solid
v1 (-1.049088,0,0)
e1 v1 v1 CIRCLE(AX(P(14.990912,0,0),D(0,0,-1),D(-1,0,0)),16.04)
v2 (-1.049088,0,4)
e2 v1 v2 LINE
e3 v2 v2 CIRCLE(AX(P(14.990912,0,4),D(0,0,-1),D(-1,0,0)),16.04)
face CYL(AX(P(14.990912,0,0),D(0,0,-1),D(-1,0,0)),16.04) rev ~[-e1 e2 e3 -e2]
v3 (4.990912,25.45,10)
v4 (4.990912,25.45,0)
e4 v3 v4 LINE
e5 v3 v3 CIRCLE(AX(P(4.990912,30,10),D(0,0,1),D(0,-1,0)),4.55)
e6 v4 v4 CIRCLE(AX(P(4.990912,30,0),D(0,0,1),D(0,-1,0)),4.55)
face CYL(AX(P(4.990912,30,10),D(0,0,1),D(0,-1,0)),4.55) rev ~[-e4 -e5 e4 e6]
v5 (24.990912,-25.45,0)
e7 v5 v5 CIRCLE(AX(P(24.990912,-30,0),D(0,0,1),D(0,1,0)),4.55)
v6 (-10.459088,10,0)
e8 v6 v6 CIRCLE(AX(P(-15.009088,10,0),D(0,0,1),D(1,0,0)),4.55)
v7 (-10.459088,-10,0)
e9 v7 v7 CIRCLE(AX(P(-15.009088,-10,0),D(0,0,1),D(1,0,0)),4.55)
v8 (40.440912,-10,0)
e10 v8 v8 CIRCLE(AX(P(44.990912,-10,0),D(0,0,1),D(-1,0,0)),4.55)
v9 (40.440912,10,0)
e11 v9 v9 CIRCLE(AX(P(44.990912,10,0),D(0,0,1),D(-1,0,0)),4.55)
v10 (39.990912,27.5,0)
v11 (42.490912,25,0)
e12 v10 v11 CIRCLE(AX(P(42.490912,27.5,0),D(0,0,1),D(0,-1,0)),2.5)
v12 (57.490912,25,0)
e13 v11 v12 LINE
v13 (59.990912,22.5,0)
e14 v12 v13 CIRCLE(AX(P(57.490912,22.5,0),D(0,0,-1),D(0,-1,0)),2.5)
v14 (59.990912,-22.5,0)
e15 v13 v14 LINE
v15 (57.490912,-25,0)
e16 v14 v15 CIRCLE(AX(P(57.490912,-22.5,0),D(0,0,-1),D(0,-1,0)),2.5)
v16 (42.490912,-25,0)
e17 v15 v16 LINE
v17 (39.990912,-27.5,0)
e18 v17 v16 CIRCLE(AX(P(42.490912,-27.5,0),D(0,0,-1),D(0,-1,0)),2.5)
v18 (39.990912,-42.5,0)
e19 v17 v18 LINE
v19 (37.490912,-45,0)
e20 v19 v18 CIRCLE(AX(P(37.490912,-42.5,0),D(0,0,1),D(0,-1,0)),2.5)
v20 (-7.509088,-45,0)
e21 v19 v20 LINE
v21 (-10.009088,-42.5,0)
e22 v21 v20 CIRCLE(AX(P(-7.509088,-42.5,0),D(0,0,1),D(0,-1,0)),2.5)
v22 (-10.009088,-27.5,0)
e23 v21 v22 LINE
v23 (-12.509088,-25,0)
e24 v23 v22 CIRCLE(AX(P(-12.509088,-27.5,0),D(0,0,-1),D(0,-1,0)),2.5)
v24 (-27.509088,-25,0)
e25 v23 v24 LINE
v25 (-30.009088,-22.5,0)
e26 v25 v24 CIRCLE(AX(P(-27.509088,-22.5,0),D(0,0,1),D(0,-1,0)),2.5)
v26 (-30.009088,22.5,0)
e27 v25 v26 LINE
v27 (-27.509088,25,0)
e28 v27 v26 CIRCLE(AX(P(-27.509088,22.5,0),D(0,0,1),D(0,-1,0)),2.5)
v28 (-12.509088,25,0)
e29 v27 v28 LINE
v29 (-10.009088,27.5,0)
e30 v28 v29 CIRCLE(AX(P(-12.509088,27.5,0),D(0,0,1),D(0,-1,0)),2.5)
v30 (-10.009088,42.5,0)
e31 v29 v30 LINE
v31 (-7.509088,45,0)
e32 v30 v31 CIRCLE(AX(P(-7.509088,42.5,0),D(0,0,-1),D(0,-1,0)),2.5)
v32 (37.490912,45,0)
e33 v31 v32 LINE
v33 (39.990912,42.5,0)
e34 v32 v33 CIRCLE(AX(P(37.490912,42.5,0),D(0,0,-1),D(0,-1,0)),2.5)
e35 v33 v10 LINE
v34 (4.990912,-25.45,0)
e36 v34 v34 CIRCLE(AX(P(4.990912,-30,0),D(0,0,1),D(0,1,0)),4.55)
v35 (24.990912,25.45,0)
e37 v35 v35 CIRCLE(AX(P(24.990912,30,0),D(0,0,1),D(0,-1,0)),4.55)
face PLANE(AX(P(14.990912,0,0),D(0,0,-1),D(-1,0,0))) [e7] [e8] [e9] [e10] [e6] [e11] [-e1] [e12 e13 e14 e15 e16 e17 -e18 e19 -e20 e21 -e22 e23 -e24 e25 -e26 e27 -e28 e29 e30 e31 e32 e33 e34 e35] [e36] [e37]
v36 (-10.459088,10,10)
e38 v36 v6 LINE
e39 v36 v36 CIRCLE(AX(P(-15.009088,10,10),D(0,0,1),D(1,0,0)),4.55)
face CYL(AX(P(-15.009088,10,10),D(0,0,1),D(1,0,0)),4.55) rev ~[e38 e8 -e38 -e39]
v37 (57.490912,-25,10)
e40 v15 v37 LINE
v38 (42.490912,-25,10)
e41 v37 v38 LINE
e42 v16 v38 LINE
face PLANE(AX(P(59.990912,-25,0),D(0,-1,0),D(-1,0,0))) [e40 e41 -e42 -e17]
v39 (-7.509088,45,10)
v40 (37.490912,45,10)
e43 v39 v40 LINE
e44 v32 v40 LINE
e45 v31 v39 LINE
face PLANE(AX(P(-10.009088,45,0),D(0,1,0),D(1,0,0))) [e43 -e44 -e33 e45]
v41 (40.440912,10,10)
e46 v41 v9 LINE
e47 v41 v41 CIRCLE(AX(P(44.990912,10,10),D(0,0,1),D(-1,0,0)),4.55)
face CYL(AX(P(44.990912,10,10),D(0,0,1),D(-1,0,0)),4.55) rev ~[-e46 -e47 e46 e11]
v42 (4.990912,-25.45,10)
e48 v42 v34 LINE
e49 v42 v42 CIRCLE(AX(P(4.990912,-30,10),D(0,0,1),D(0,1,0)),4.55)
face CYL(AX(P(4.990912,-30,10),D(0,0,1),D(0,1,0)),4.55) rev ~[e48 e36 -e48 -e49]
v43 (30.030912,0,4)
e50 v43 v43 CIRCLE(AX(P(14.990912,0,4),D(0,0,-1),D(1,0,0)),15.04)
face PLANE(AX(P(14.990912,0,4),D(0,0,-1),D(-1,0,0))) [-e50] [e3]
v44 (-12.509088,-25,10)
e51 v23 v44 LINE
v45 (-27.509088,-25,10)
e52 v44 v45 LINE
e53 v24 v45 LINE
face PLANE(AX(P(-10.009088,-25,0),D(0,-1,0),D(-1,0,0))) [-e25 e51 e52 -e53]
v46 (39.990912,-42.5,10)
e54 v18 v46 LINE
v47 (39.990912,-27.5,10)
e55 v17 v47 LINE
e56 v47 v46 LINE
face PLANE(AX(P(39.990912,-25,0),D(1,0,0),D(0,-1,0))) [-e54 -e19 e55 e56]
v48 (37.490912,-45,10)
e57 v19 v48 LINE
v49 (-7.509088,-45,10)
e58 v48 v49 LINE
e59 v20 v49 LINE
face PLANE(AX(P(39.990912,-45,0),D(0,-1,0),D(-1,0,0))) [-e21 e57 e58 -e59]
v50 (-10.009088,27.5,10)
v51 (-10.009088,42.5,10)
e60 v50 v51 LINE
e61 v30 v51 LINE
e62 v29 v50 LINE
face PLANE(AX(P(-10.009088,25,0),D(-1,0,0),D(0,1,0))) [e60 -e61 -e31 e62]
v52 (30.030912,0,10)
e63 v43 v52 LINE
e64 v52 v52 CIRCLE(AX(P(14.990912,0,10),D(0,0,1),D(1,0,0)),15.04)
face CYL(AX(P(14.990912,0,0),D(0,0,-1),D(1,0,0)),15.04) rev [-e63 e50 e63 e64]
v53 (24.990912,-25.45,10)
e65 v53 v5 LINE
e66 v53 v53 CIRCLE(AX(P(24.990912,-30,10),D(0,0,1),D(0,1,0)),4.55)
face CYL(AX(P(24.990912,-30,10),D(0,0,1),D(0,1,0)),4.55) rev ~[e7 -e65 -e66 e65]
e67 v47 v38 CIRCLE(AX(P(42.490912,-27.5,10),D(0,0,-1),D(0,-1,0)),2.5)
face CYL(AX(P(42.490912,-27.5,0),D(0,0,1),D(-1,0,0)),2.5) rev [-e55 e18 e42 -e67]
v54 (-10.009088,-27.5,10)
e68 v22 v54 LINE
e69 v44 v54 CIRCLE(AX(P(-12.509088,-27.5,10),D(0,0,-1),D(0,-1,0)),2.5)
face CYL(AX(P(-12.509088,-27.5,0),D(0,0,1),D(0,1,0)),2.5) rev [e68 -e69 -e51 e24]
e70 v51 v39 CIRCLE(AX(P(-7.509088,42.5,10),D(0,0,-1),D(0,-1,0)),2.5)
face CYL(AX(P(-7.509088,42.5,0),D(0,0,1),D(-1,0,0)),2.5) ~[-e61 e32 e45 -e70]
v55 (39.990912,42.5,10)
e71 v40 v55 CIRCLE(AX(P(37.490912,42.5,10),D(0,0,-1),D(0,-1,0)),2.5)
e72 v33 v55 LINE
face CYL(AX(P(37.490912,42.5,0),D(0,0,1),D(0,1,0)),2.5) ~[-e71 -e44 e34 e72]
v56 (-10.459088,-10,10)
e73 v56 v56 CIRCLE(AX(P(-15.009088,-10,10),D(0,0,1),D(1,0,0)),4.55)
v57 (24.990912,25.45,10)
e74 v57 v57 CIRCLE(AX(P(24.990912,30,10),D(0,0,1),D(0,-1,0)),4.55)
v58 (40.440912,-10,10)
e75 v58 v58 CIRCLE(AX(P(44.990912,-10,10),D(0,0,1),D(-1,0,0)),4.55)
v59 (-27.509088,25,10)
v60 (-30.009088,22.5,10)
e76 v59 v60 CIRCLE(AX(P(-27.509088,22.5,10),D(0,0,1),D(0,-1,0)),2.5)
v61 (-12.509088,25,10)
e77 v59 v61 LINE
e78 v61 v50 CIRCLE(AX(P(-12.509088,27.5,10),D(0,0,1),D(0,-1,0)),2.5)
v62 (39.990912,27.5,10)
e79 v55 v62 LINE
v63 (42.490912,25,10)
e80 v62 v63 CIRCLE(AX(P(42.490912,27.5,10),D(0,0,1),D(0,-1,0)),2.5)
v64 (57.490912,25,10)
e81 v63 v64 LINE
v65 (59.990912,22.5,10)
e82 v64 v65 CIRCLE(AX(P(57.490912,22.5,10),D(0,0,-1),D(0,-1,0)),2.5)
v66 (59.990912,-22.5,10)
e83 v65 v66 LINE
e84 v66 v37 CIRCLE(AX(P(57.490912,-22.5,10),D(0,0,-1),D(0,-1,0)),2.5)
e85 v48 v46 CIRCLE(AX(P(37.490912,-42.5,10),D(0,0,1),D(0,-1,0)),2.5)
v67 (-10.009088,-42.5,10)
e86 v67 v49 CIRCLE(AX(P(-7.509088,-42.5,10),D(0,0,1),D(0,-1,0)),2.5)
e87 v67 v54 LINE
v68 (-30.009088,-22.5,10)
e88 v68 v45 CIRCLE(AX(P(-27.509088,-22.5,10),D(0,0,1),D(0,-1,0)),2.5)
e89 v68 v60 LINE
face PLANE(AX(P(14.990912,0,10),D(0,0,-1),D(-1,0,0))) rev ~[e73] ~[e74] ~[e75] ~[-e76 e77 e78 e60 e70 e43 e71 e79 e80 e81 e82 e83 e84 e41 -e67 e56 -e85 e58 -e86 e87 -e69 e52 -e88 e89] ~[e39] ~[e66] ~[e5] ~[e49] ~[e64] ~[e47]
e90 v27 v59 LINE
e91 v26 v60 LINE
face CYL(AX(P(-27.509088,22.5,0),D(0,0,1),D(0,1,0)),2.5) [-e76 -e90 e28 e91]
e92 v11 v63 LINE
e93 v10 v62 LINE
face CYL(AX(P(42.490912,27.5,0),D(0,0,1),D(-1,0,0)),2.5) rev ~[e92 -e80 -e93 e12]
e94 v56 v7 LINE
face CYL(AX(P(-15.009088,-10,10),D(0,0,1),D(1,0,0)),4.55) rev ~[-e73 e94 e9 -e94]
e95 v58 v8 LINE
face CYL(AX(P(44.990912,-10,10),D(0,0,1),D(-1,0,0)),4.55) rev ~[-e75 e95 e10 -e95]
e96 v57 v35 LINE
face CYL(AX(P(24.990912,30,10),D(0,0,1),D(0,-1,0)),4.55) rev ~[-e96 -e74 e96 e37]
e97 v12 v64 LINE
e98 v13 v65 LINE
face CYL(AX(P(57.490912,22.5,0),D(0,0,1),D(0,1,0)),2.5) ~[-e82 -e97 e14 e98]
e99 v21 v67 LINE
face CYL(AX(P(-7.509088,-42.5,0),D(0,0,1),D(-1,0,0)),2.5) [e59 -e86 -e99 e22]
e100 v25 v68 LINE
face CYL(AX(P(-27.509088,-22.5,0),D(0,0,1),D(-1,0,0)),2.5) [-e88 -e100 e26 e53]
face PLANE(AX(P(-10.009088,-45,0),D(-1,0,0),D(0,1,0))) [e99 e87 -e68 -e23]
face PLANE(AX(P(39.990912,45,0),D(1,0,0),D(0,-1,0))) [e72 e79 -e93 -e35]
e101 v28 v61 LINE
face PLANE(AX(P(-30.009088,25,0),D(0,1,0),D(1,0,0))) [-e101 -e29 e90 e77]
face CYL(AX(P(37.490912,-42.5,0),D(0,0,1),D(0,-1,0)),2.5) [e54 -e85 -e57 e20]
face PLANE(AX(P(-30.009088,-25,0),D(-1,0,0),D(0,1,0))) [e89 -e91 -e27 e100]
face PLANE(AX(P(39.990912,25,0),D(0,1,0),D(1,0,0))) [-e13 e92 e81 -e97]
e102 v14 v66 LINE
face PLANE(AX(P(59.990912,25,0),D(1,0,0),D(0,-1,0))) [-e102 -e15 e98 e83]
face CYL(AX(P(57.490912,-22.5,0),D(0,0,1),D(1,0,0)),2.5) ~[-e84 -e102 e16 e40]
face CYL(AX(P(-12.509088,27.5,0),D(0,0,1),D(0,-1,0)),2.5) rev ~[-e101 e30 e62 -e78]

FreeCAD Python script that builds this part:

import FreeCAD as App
import Part
import Sketcher
from FreeCAD import Vector
Q = App.Units.Quantity


def edges_at(feature, points):
    """Names of the edges that pass closest to the given points."""
    edges = feature.Shape.Edges
    near = lambda p: min(range(len(edges)), key=lambda i: edges[i].distToShape(Part.Vertex(*p))[0])
    return sorted({f"Edge{near(p) + 1}" for p in points})


def add_polygon(sketch, points):
    """Adds a closed chain of lines whose ends are joined by coincident constraints."""
    first, n = sketch.GeometryCount, len(points)
    for a, b in zip(points, points[1:] + points[:1]):
        sketch.addGeometry(Part.LineSegment(App.Vector(*a, 0), App.Vector(*b, 0)), False)
    for i in range(n):
        sketch.addConstraint(Sketcher.Constraint("Coincident", first + i, 2, first + (i + 1) % n, 1))

doc = App.newDocument("Part")
body = doc.addObject("PartDesign::Body", "Body")

# Sketch on XY plane
sketch1 = body.newObject("Sketcher::SketchObject", "Sketch")
sketch1.AttachmentSupport = (doc.getObject("XY_Plane"), [""])
sketch1.MapMode = "FlatFace"
add_polygon(sketch1, [(-10, 25), (-30, 25), (-30, -25), (-10, -25), (-10, -45), (40, -45), (40, -25), (60, -25), (60, 25), (40, 25), (40, 45), (-10, 45)])  # lines 0-11
sketch1.addGeometry(Part.Circle(Vector(15, 0, 0), Vector(0, 0, 1), 15), False)  # 12
sketch1.addConstraint([
    Sketcher.Constraint("Horizontal", 0),
    Sketcher.Constraint("Vertical", 1),
    Sketcher.Constraint("Horizontal", 2),
    Sketcher.Constraint("Vertical", 3),
    Sketcher.Constraint("Horizontal", 4),
    Sketcher.Constraint("Vertical", 5),
    Sketcher.Constraint("Horizontal", 6),
    Sketcher.Constraint("Vertical", 7),
    Sketcher.Constraint("Horizontal", 8),
    Sketcher.Constraint("Vertical", 9),
    Sketcher.Constraint("Horizontal", 10),
    Sketcher.Constraint("Vertical", 11),
    Sketcher.Constraint("Symmetric", 5, 2, 8, 2, -1),
    Sketcher.Constraint("Symmetric", 3, 2, 10, 2, -1),
    Sketcher.Constraint("PointOnObject", 12, 3, -1),
    Sketcher.Constraint("Horizontal", 2, 2, 5, 2),
    Sketcher.Constraint("Horizontal", 0, 2, 7, 2),
    Sketcher.Constraint("Equal", 2, 6),
    Sketcher.Constraint("Equal", 10, 1),
    Sketcher.Constraint("Equal", 8, 3),
    Sketcher.Constraint("Diameter", 12, Q("30.08 mm")),
    Sketcher.Constraint("DistanceX", 0, 2, 0, 1, Q("20 mm")),
    Sketcher.Constraint("DistanceX", 4, 1, 4, 2, Q("50 mm")),
    Sketcher.Constraint("DistanceX", 0, 2, 12, 3, Q("45 mm")),
    Sketcher.Constraint("DistanceX", -1, 1, 12, 3, Q("14.990912 mm")),
])
pad1 = body.newObject("PartDesign::Pad", "Pad")
pad1.Profile = sketch1
pad1.Length = 10
doc.recompute()

fillet = body.newObject("PartDesign::Fillet", "Fillet")
fillet.Base = (pad1, edges_at(pad1, [
    (-10.009, 25, 5),
    (39.991, 25, 5),
    (39.991, -25, 5),
    (-10.009, -25, 5),
]))
fillet.Radius = 2.5

# Sketch on XY plane
sketch2 = body.newObject("Sketcher::SketchObject", "Sketch001")
sketch2.AttachmentSupport = (doc.getObject("XY_Plane"), [""])
sketch2.MapMode = "FlatFace"
sketch2.addGeometry(Part.Circle(Vector(15, 0, 0), Vector(0, 0, 1), 16), False)
sketch2.addConstraint([
    Sketcher.Constraint("PointOnObject", 0, 3, -1),
    Sketcher.Constraint("Diameter", 0, Q("32.08 mm")),
    Sketcher.Constraint("DistanceX", -1, 1, 0, 3, Q("14.990912 mm")),
])
pocket1 = body.newObject("PartDesign::Pocket", "Pocket")
pocket1.Profile = sketch2
pocket1.Length = 4
pocket1.Reversed = True
doc.recompute()

fillet2 = body.newObject("PartDesign::Fillet", "Fillet001")
fillet2.Base = (pocket1, edges_at(pocket1, [
    (-30.009, 25, 5),
    (-10.009, 45, 5),
    (39.991, 45, 5),
    (59.991, 25, 5),
    (59.991, -25, 5),
    (39.991, -45, 5),
    (-10.009, -45, 5),
    (-30.009, -25, 5),
]))
fillet2.Radius = 2.5

# Sketch on XY plane
sketch3 = body.newObject("Sketcher::SketchObject", "Sketch002")
sketch3.AttachmentSupport = (doc.getObject("XY_Plane"), [""])
sketch3.MapMode = "FlatFace"
sketch3.AttachmentOffset = App.Placement(Vector(0, 0, 10), App.Rotation())
sketch3.addGeometry([
    Part.Circle(Vector(-15, -10, 0), Vector(0, 0, 1), 4.5),
    Part.Circle(Vector(-15, 10, 0), Vector(0, 0, 1), 4.5),
], False)
sketch3.addConstraint([
    Sketcher.Constraint("Equal", 0, 1),
    Sketcher.Constraint("Symmetric", 0, 3, 1, 3, -1),
    Sketcher.Constraint("Diameter", 0, Q("9.1 mm")),
    Sketcher.Constraint("DistanceY", 0, 3, -1, 1, Q("10 mm")),
    Sketcher.Constraint("DistanceX", 0, 3, -1, 1, Q("15.009088 mm")),
])
pocket2 = body.newObject("PartDesign::Pocket", "Pocket001")
pocket2.Profile = sketch3
pocket2.Type = "ThroughAll"
doc.recompute()

datumline = body.newObject("PartDesign::Line", "DatumLine")
datumline.Placement = App.Placement(Vector(14.990912, 0, 0), App.Rotation(Vector(0, 0, 1), Vector(0, 0, 1)))
polarpattern = body.newObject("PartDesign::PolarPattern", "PolarPattern")
polarpattern.Originals = [pocket2]
polarpattern.Axis = (datumline, [""])
polarpattern.Angle = 360
polarpattern.Occurrences = 4
body.Tip = polarpattern

doc.recompute()
